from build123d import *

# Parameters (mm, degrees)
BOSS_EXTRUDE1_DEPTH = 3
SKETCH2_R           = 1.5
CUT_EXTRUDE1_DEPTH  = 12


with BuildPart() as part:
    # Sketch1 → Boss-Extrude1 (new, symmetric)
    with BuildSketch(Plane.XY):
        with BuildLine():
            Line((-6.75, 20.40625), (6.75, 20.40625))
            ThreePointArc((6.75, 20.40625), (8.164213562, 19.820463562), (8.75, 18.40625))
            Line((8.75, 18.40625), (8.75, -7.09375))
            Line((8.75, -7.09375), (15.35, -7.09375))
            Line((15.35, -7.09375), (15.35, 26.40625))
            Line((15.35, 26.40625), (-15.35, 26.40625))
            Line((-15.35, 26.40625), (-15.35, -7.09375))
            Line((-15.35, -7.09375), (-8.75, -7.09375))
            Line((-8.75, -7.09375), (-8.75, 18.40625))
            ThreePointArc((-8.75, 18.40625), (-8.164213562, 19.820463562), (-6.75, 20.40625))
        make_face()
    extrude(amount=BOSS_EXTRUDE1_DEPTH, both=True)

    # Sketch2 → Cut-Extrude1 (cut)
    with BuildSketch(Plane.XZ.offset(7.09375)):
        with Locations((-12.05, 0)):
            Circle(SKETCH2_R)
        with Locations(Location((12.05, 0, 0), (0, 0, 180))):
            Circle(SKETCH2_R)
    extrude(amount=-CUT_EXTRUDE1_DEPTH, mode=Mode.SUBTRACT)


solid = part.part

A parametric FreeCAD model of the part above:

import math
import FreeCAD as App
import Part
import Sketcher
from FreeCAD import Vector

doc = App.newDocument("Part")
body = doc.addObject("PartDesign::Body", "Body")

sketch1 = doc.addObject("Sketcher::SketchObject", "Sketch")
body.addObject(sketch1)
sketch1.AttachmentSupport = (doc.XY_Plane, [""])
sketch1.MapMode = "FlatFace"
sketch1.addGeometry(Part.LineSegment(Vector(-6.8, 20.4, 0), Vector(6.8, 20.4, 0)), False)
sketch1.addGeometry(Part.ArcOfCircle(Part.Circle(Vector(6.7, 18.4, 0), Vector(0, 0, 1), 2), math.radians(0), math.radians(90)), False)
sketch1.addGeometry(Part.LineSegment(Vector(8.8, 18.4, 0), Vector(8.8, -7.1, 0)), False)
sketch1.addGeometry(Part.LineSegment(Vector(8.8, -7.1, 0), Vector(15.3, -7.1, 0)), False)
sketch1.addGeometry(Part.LineSegment(Vector(15.3, -7.1, 0), Vector(15.3, 26.4, 0)), False)
sketch1.addGeometry(Part.LineSegment(Vector(15.3, 26.4, 0), Vector(-15.3, 26.4, 0)), False)
sketch1.addGeometry(Part.LineSegment(Vector(-15.3, 26.4, 0), Vector(-15.3, -7.1, 0)), False)
sketch1.addGeometry(Part.LineSegment(Vector(-15.3, -7.1, 0), Vector(-8.8, -7.1, 0)), False)
sketch1.addGeometry(Part.LineSegment(Vector(-8.8, -7.1, 0), Vector(-8.8, 18.4, 0)), False)
sketch1.addGeometry(Part.ArcOfCircle(Part.Circle(Vector(-6.7, 18.4, 0), Vector(0, 0, 1), 2), math.radians(90), math.radians(180)), False)
sketch1.addConstraint(Sketcher.Constraint("Tangent", 0, 2, 1, 2))
sketch1.addConstraint(Sketcher.Constraint("Tangent", 1, 1, 2, 1))
sketch1.addConstraint(Sketcher.Constraint("Coincident", 2, 2, 3, 1))
sketch1.addConstraint(Sketcher.Constraint("Coincident", 3, 2, 4, 1))
sketch1.addConstraint(Sketcher.Constraint("Coincident", 4, 2, 5, 1))
sketch1.addConstraint(Sketcher.Constraint("Coincident", 5, 2, 6, 1))
sketch1.addConstraint(Sketcher.Constraint("Coincident", 6, 2, 7, 1))
sketch1.addConstraint(Sketcher.Constraint("Coincident", 7, 2, 8, 1))
sketch1.addConstraint(Sketcher.Constraint("Tangent", 8, 2, 9, 2))
sketch1.addConstraint(Sketcher.Constraint("Tangent", 9, 1, 0, 1))
sketch1.addConstraint(Sketcher.Constraint("Horizontal", 0))
sketch1.addConstraint(Sketcher.Constraint("Vertical", 2))
sketch1.addConstraint(Sketcher.Constraint("Horizontal", 3))
sketch1.addConstraint(Sketcher.Constraint("Vertical", 4))
sketch1.addConstraint(Sketcher.Constraint("Horizontal", 5))
sketch1.addConstraint(Sketcher.Constraint("Vertical", 6))
sketch1.addConstraint(Sketcher.Constraint("Horizontal", 7))
sketch1.addConstraint(Sketcher.Constraint("Vertical", 8))
sketch1.addConstraint(Sketcher.Constraint("Equal", 1, 9))
sketch1.addConstraint(Sketcher.Constraint("Symmetric", 3, 2, 6, 2, -2))
sketch1.addConstraint(Sketcher.Constraint("Equal", 3, 7))
sketch1.addConstraint(Sketcher.Constraint("Radius", 1, 2.0))
sketch1.addConstraint(Sketcher.Constraint("DistanceX", 0, 1, 0, 2, 13.5))
sketch1.addConstraint(Sketcher.Constraint("DistanceX", 3, 1, 3, 2, 6.6))
sketch1.addConstraint(Sketcher.Constraint("DistanceY", 2, 2, 2, 1, 25.5))
sketch1.addConstraint(Sketcher.Constraint("DistanceY", 4, 1, 4, 2, 33.5))
sketch1.addConstraint(Sketcher.Constraint("DistanceY", -1, 1, 1, 3, 18.40625))
pad1 = doc.addObject("PartDesign::Pad", "Pad")
body.addObject(pad1)
pad1.Profile = sketch1
pad1.Length = 6
pad1.Midplane = True

sketch2 = doc.addObject("Sketcher::SketchObject", "Sketch001")
body.addObject(sketch2)
sketch2.AttachmentSupport = (doc.XZ_Plane, [""])
sketch2.MapMode = "FlatFace"
sketch2.AttachmentOffset = App.Placement(Vector(0, 0, 7.09375), App.Rotation())
sketch2.addGeometry(Part.Circle(Vector(-12.1, 0, 0), Vector(0, 0, 1), 1.5), False)
sketch2.addGeometry(Part.Circle(Vector(12.1, 0, 0), Vector(0, 0, 1), 1.5), False)
sketch2.addConstraint(Sketcher.Constraint("Equal", 0, 1))
sketch2.addConstraint(Sketcher.Constraint("Symmetric", 0, 3, 1, 3, -1, 1))
sketch2.addConstraint(Sketcher.Constraint("PointOnObject", 0, 3, -1))
sketch2.addConstraint(Sketcher.Constraint("Diameter", 0, 3.0))
sketch2.addConstraint(Sketcher.Constraint("DistanceX", 0, 3, 1, 3, 24.1))
pocket1 = doc.addObject("PartDesign::Pocket", "Pocket")
body.addObject(pocket1)
pocket1.Profile = sketch2
pocket1.Length = 12

doc.recompute()
